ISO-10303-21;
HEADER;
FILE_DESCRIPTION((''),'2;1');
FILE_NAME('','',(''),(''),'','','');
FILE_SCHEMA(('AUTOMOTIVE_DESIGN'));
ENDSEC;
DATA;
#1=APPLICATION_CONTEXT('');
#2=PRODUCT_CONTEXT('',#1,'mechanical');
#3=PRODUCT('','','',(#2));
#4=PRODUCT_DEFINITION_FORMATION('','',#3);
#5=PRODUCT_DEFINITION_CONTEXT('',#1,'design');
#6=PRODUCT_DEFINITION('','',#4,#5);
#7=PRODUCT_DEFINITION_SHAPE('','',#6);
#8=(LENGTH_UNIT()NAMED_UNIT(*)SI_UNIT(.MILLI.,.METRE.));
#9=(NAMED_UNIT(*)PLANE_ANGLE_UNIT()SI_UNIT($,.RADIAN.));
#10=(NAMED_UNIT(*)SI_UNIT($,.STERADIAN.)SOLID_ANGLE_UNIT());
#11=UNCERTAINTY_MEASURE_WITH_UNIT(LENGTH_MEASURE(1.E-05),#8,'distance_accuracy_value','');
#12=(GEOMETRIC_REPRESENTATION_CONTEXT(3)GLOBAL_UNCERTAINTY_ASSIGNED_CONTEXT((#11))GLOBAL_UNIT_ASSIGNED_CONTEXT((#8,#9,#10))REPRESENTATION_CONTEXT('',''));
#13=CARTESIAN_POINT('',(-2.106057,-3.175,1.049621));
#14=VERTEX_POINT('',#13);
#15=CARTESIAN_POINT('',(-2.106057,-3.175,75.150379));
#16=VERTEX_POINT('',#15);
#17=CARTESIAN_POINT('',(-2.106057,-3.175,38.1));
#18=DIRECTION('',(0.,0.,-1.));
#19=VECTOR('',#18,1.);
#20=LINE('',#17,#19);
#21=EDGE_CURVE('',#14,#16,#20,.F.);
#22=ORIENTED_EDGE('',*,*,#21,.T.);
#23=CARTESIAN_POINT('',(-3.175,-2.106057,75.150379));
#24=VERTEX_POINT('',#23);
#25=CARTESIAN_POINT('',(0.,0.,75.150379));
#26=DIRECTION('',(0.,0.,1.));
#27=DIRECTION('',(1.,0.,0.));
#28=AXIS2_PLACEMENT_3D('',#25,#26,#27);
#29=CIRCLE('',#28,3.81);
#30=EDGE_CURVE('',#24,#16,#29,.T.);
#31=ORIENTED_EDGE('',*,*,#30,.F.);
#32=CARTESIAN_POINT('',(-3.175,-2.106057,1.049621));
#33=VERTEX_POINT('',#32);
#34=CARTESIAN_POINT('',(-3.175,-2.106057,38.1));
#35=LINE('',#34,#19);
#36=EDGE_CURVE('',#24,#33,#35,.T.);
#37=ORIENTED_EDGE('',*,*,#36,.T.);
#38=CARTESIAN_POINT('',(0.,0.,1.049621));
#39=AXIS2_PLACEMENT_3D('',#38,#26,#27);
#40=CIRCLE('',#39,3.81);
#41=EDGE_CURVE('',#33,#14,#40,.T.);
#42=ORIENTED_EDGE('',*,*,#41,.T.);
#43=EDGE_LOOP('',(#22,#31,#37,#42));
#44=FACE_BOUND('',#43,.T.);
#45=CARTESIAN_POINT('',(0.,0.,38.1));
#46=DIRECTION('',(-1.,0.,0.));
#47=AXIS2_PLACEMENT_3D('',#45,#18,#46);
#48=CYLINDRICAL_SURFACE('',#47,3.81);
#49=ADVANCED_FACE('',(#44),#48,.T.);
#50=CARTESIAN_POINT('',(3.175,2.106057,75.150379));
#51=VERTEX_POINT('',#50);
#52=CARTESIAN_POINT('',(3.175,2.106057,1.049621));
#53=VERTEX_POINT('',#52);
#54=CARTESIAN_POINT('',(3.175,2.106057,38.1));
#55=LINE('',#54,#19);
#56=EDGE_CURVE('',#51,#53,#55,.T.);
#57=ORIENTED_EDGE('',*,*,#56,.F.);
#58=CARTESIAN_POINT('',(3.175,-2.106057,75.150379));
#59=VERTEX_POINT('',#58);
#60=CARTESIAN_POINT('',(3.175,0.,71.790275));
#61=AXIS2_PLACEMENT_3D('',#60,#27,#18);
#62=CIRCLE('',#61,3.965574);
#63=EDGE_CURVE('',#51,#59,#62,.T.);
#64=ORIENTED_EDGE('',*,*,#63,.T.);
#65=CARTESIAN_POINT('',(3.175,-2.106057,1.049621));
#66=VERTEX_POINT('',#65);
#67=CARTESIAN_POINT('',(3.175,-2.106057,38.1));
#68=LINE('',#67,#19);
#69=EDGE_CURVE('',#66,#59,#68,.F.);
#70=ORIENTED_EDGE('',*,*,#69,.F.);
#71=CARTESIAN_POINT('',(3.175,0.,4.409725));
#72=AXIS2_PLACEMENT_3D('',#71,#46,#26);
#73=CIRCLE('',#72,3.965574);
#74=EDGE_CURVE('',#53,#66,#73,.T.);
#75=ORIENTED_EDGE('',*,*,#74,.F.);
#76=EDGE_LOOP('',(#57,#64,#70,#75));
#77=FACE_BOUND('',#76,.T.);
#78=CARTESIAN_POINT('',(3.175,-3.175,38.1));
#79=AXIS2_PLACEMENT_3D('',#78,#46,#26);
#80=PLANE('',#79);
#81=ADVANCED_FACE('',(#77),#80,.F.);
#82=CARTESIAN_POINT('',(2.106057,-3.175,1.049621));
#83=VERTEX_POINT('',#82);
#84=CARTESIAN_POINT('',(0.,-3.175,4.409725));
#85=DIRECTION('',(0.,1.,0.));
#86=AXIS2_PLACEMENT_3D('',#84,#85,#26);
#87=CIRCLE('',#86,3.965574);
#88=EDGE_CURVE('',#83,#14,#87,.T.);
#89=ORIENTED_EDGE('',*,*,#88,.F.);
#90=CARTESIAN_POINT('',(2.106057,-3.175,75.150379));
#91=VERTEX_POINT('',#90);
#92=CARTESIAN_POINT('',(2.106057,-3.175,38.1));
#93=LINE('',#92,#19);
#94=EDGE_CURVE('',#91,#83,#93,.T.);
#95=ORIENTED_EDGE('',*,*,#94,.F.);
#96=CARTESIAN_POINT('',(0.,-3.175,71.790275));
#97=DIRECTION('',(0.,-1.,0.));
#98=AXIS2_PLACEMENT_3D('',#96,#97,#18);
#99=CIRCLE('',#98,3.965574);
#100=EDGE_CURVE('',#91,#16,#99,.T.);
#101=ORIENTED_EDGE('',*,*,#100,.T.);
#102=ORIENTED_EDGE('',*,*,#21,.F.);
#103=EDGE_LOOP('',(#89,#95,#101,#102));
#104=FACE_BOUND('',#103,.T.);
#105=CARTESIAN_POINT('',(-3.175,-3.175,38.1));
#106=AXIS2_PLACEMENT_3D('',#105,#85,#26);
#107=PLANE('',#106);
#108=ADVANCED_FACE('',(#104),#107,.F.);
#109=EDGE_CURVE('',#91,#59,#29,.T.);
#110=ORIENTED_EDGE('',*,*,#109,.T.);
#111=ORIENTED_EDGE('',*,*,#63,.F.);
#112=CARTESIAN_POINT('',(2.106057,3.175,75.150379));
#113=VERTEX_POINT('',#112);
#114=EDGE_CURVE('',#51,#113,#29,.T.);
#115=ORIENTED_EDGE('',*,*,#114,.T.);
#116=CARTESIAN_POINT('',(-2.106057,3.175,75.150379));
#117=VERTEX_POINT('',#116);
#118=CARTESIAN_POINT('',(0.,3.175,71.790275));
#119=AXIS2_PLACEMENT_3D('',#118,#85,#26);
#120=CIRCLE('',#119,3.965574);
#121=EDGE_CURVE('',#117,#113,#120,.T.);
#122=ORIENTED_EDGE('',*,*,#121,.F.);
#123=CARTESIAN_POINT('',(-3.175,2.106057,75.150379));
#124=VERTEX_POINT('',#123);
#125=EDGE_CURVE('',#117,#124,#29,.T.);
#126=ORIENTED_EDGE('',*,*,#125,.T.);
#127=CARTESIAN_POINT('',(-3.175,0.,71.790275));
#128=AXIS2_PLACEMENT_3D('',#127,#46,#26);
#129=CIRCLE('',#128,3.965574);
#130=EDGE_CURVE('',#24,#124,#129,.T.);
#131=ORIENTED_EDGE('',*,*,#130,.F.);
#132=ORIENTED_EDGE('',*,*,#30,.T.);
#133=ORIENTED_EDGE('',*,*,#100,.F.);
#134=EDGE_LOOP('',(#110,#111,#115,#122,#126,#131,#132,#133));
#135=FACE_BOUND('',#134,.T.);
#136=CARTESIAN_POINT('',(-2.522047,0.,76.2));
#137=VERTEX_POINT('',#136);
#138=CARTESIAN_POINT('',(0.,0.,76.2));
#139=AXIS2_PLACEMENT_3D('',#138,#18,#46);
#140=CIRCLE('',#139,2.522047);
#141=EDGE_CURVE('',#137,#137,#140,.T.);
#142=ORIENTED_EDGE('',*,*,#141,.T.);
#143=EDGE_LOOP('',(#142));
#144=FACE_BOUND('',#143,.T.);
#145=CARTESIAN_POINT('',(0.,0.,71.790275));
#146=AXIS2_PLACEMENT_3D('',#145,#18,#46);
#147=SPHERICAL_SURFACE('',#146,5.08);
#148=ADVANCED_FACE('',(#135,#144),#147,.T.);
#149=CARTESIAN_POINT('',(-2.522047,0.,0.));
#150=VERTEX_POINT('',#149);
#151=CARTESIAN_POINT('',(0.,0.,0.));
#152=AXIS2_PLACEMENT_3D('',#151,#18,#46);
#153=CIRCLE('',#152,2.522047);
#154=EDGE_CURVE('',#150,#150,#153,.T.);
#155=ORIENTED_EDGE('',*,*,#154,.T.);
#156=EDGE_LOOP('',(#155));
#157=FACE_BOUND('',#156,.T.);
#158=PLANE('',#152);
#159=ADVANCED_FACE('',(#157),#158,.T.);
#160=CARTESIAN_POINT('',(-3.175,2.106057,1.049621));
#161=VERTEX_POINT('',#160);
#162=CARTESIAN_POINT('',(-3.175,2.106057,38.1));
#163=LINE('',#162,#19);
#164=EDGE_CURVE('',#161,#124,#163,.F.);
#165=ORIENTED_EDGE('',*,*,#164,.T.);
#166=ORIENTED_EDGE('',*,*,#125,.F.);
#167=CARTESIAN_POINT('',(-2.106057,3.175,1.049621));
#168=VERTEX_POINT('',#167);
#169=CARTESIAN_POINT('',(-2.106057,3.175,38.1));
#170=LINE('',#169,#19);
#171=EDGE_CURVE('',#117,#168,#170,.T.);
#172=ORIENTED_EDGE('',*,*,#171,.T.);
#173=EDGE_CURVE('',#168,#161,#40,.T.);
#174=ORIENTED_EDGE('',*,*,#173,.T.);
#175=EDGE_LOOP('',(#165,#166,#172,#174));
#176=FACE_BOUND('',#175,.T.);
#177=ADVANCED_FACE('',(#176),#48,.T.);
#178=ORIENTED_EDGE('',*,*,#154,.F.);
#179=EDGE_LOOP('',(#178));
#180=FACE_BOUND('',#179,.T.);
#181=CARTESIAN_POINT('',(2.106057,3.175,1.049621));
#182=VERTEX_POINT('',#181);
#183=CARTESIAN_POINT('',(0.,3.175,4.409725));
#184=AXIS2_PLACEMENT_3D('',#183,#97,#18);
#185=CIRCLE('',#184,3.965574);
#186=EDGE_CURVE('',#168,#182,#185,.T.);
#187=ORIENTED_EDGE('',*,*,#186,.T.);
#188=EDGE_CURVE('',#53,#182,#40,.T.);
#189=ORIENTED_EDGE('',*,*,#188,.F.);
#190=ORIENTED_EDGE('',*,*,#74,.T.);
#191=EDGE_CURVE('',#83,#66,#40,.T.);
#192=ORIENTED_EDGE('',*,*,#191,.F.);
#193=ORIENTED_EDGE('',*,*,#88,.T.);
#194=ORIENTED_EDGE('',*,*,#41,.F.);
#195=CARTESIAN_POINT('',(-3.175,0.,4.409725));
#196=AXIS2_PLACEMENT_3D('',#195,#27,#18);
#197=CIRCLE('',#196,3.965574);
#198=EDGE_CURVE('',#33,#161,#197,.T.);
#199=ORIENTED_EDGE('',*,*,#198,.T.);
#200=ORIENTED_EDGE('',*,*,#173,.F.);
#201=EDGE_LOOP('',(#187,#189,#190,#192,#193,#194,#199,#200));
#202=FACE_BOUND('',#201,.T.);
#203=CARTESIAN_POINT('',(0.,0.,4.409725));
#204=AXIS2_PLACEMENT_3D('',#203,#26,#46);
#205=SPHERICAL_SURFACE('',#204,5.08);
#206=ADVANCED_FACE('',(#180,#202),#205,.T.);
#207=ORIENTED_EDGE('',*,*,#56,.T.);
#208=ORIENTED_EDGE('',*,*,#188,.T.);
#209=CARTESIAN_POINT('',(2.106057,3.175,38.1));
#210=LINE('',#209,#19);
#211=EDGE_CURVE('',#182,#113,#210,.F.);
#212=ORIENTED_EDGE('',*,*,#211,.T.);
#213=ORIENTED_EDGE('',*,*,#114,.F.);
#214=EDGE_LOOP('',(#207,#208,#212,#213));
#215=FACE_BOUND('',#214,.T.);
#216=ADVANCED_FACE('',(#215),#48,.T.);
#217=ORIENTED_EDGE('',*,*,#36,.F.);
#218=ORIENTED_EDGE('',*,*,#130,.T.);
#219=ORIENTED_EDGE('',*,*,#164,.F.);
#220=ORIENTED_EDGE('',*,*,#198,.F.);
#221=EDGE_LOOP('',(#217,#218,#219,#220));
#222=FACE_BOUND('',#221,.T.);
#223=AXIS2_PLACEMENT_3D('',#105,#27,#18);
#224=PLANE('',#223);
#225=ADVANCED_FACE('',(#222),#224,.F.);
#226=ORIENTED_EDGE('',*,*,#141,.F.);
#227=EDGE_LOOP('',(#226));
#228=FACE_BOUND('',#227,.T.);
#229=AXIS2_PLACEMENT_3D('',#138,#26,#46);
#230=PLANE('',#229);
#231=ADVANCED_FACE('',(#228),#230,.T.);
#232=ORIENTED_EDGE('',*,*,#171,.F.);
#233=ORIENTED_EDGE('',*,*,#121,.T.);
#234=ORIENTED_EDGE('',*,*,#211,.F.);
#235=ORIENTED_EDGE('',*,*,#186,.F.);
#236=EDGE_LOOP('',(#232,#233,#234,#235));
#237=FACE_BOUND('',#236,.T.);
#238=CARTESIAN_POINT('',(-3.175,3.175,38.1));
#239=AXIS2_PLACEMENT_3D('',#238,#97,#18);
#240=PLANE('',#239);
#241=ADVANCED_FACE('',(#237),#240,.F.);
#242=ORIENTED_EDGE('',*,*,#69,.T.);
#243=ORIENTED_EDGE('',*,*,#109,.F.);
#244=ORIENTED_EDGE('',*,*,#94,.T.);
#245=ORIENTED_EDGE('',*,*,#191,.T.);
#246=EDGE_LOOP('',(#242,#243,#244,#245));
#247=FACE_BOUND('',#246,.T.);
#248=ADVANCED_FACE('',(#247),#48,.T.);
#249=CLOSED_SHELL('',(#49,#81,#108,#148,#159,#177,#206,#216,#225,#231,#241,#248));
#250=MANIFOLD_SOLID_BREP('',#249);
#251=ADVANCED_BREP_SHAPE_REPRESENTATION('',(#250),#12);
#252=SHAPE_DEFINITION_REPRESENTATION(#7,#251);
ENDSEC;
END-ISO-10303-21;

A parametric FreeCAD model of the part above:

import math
import FreeCAD as App
import Part
import Sketcher
from FreeCAD import Vector
Q = App.Units.Quantity


def add_polygon(sketch, points):
    """Adds a closed chain of lines whose ends are joined by coincident constraints."""
    first, n = sketch.GeometryCount, len(points)
    for a, b in zip(points, points[1:] + points[:1]):
        sketch.addGeometry(Part.LineSegment(App.Vector(*a, 0), App.Vector(*b, 0)), False)
    for i in range(n):
        sketch.addConstraint(Sketcher.Constraint("Coincident", first + i, 2, first + (i + 1) % n, 1))

doc = App.newDocument("Part")
body = doc.addObject("PartDesign::Body", "Body")

sketch1 = doc.addObject("Sketcher::SketchObject", "Sketch")
body.addObject(sketch1)
sketch1.AttachmentSupport = (doc.XY_Plane, [""])
sketch1.MapMode = "FlatFace"
add_polygon(sketch1, [(-3, 3), (-3, -3), (3, -3), (3, 3)])
sketch1.addConstraint([
    Sketcher.Constraint("Vertical", 0),
    Sketcher.Constraint("Horizontal", 1),
    Sketcher.Constraint("Vertical", 2),
    Sketcher.Constraint("Horizontal", 3),
    Sketcher.Constraint("Symmetric", 0, 2, 2, 2, -1, 1),
    Sketcher.Constraint("Equal", 3, 0),
    Sketcher.Constraint("DistanceX", 1, 1, 1, 2, Q("0.25 in")),
])
pad1 = doc.addObject("PartDesign::Pad", "Pad")
body.addObject(pad1)
pad1.Profile = sketch1
pad1.Length = Q("1.5 in")

sketch2 = doc.addObject("Sketcher::SketchObject", "Sketch001")
body.addObject(sketch2)
sketch2.AttachmentSupport = (doc.XY_Plane, [""])
sketch2.MapMode = "FlatFace"
add_polygon(sketch2, [(8.1, 8.1), (8.1, -8.1), (-8.1, -8.1), (-8.1, 8.1)])
sketch2.addGeometry(Part.Circle(Vector(0, 0, 0), Vector(0, 0, 1), 3.8), False)
sketch2.addConstraint([
    Sketcher.Constraint("Vertical", 0),
    Sketcher.Constraint("Horizontal", 1),
    Sketcher.Constraint("Vertical", 2),
    Sketcher.Constraint("Horizontal", 3),
    Sketcher.Constraint("Coincident", 4, 3, -1, 1),
    Sketcher.Constraint("Symmetric", 0, 2, 2, 2, -1, 1),
    Sketcher.Constraint("Equal", 3, 0),
    Sketcher.Constraint("Diameter", 4, Q("0.3 in")),
    Sketcher.Constraint("DistanceX", 1, 2, 1, 1, 16.178),
])
pocket1 = doc.addObject("PartDesign::Pocket", "Pocket")
body.addObject(pocket1)
pocket1.Profile = sketch2
pocket1.Type = "ThroughAll"
pocket1.Reversed = True

sketch3 = doc.addObject("Sketcher::SketchObject", "Sketch002")
body.addObject(sketch3)
sketch3.AttachmentSupport = (doc.XZ_Plane, [""])
sketch3.MapMode = "FlatFace"
sketch3.addGeometry([
    Part.LineSegment(Vector(-5, -6, 0), Vector(-5, 4, 0)),
    Part.ArcOfCircle(Part.Circle(Vector(0, 4, 0), Vector(0, 0, 1), 5), math.radians(-174), math.radians(-90)),
    Part.LineSegment(Vector(0, -1, 0), Vector(0, -6, 0)),
    Part.LineSegment(Vector(0, -6, 0), Vector(-5, -6, 0)),
], False)
sketch3.addConstraint([
    Sketcher.Constraint("Coincident", 0, 2, 1, 1),
    Sketcher.Constraint("Coincident", 1, 2, 2, 1),
    Sketcher.Constraint("Coincident", 2, 2, 3, 1),
    Sketcher.Constraint("Coincident", 3, 2, 0, 1),
    Sketcher.Constraint("Vertical", 0),
    Sketcher.Constraint("Vertical", 2),
    Sketcher.Constraint("Horizontal", 3),
    Sketcher.Constraint("PointOnObject", 1, 3, -2),
    Sketcher.Constraint("PointOnObject", 1, 2, -2),
    Sketcher.Constraint("Radius", 1, Q("0.2 in")),
    Sketcher.Constraint("DistanceX", 3, 2, 3, 1, 5.053686),
    Sketcher.Constraint("DistanceY", 0, 1, 0, 2, 9.633866),
    Sketcher.Constraint("DistanceY", 2, 2, -1, 1, 5.740531),
])
groove = doc.addObject("PartDesign::Groove", "Groove")
body.addObject(groove)
groove.Profile = sketch3
groove.ReferenceAxis = (sketch3, ["V_Axis"])
groove.Angle = 360
body2 = doc.addObject("PartDesign::Body", "Body001")
doc.recompute()

body2.BaseFeature = body
doc.recompute()

mirroring = doc.addObject("Part::Mirroring", "Mirroring")
mirroring.Source = body
mirroring.Base = Vector(0, 0, 38.1)
mirroring.Normal = Vector(0, 0, -1)
body3 = doc.addObject("PartDesign::Body", "Body002")
body3.BaseFeature = mirroring
boolean = doc.addObject("PartDesign::Boolean", "Boolean")
body2.addObject(boolean)
boolean.Type = "Fuse"
boolean.addObjects([body3])
doc.recompute()
mirroring.Visibility = False

doc.recompute()
